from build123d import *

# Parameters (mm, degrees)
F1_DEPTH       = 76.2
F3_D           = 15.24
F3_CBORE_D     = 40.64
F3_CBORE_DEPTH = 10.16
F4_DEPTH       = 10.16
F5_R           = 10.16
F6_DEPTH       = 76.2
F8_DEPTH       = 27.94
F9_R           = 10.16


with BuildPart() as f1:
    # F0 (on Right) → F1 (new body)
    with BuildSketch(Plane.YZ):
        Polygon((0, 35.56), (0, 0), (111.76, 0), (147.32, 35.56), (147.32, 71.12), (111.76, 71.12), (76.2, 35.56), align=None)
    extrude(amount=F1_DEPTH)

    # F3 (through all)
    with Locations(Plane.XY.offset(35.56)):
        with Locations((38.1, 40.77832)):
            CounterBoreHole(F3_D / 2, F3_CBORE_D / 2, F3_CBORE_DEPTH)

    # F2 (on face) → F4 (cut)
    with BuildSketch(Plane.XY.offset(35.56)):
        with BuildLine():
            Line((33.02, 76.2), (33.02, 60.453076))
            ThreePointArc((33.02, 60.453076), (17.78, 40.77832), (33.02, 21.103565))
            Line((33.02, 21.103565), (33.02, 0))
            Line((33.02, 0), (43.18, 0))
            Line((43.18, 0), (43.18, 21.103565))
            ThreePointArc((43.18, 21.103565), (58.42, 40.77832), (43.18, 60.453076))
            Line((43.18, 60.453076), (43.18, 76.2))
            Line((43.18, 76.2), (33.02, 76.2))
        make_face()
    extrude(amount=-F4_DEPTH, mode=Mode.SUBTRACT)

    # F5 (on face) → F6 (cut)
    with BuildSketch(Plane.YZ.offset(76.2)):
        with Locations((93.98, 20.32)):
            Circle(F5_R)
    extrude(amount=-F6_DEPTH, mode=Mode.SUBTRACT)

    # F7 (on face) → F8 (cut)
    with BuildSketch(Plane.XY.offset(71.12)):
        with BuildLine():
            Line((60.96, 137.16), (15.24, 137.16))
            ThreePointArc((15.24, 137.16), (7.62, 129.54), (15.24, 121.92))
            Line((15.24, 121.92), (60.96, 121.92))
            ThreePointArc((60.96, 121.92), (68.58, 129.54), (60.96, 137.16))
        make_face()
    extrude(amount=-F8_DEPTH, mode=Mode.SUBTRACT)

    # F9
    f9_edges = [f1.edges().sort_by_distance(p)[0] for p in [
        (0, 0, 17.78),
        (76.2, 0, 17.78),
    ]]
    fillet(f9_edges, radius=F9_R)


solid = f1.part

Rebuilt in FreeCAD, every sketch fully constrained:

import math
import FreeCAD as App
import Part
import Sketcher

V = App.Vector
Q = App.Units.Quantity


def edges_at(feature, points):
    """Names of the edges that pass closest to the given points."""
    edges = feature.Shape.Edges
    near = lambda p: min(range(len(edges)), key=lambda i: edges[i].distToShape(Part.Vertex(*p))[0])
    return sorted({f"Edge{near(p) + 1}" for p in points})


def add_polygon(sketch, points):
    """Adds a closed chain of lines whose ends are joined by coincident constraints."""
    first, n = sketch.GeometryCount, len(points)
    for a, b in zip(points, points[1:] + points[:1]):
        sketch.addGeometry(Part.LineSegment(App.Vector(*a, 0), App.Vector(*b, 0)), False)
    for i in range(n):
        sketch.addConstraint(Sketcher.Constraint("Coincident", first + i, 2, first + (i + 1) % n, 1))

doc = App.newDocument("Part")
params = doc.addObject("Spreadsheet::Sheet", "Params")
for row, (alias, value) in enumerate([
    ("sketch1_width", "3 in"),
    ("sketch1_width2", "4.4 in"),
    ("pad1_length", "3 in"),
    ("sketch2_diameter", "0.6 in"),
    ("hole_diameter", "0.6 in"),
    ("hole_cbore_diameter", "1.6 in"),
    ("hole_cbore_depth", "0.4 in"),
    ("sketch3_radius", "0.8 in"),
    ("sketch3_width", "0.4 in"),
    ("pocket1_length", "0.4 in"),
    ("sketch4_diameter", "0.8 in"),
    ("pocket2_length", "3 in"),
    ("sketch5_radius", "0.3 in"),
    ("sketch5_width", "1.8 in"),
    ("pocket3_length", "1.1 in"),
    ("fillet_radius", "0.4 in"),
], start=1):
    params.set(f"A{row}", alias)
    params.set(f"B{row}", "=" + value)
    params.setAlias(f"B{row}", alias)

body = doc.addObject("PartDesign::Body", "Body")

# Sketch on YZ plane
sketch1 = doc.addObject("Sketcher::SketchObject", "Sketch")
body.addObject(sketch1)
sketch1.AttachmentSupport = (doc.YZ_Plane, [""])
sketch1.MapMode = "FlatFace"
add_polygon(sketch1, [(0, 36), (0, 0), (112, 0), (147, 36), (147, 71), (112, 71), (76, 36)])  # lines 0-6
sketch1.addConstraint([
    Sketcher.Constraint("Vertical", 0),
    Sketcher.Constraint("Horizontal", 1),
    Sketcher.Constraint("Vertical", 3),
    Sketcher.Constraint("Horizontal", 4),
    Sketcher.Constraint("Horizontal", 6),
    Sketcher.Constraint("Coincident", 0, 2, -1, 1),
    Sketcher.Constraint("Parallel", 2, 5),
    Sketcher.Constraint("Horizontal", 2, 2, 5, 2),
    Sketcher.Constraint("Vertical", 1, 2, 4, 2),
    Sketcher.Constraint("Equal", 4, 0),
    Sketcher.Constraint("Equal", 0, 3),
    Sketcher.Constraint("DistanceX", 6, 2, 6, 1, Q("3 in")),
    Sketcher.Constraint("DistanceX", 1, 1, 1, 2, Q("4.4 in")),
])
sketch1.setExpression("Constraints[18]", "Params.sketch1_width")
sketch1.setExpression("Constraints[19]", "Params.sketch1_width2")
pad1 = doc.addObject("PartDesign::Pad", "Pad")
body.addObject(pad1)
pad1.Profile = sketch1
pad1.setExpression("Length", "Params.pad1_length")

# Sketch on XY plane
sketch2 = doc.addObject("Sketcher::SketchObject", "Sketch001")
body.addObject(sketch2)
sketch2.AttachmentSupport = (doc.XY_Plane, [""])
sketch2.MapMode = "FlatFace"
sketch2.AttachmentOffset = App.Placement(V(0, 0, 1.4 * 25.4), App.Rotation())
sketch2.addGeometry(Part.Circle(V(38, 41, 0), V(0, 0, 1), 8), False)
sketch2.addConstraint([
    Sketcher.Constraint("Diameter", 0, Q("0.6 in")),
    Sketcher.Constraint("DistanceX", -1, 1, 0, 3, Q("1.5 in")),
    Sketcher.Constraint("DistanceY", -1, 1, 0, 3, Q("40.77832 mm")),
])
sketch2.setExpression("Constraints[0]", "Params.sketch2_diameter")
doc.recompute()
hole = doc.addObject("PartDesign::Hole", "Hole")
body.addObject(hole)
hole.Profile = sketch2
hole.ThreadType = "None"
hole.setExpression("Diameter", "Params.hole_diameter")
hole.DepthType = "ThroughAll"
hole.HoleCutType = "Counterbore"
hole.setExpression("HoleCutDiameter", "Params.hole_cbore_diameter")
hole.setExpression("HoleCutDepth", "Params.hole_cbore_depth")

# Sketch on XY plane
sketch3 = doc.addObject("Sketcher::SketchObject", "Sketch002")
body.addObject(sketch3)
sketch3.AttachmentSupport = (doc.XY_Plane, [""])
sketch3.MapMode = "FlatFace"
sketch3.AttachmentOffset = App.Placement(V(0, 0, 1.4 * 25.4), App.Rotation())
sketch3.addGeometry([
    Part.LineSegment(V(33, 76, 0), V(33, 60, 0)),  # 0
    Part.ArcOfCircle(Part.Circle(V(38, 41, 0), V(0, 0, 1), 20), math.radians(104), math.radians(256)),  # 1
    Part.LineSegment(V(33, 21, 0), V(33, 0, 0)),  # 2
    Part.LineSegment(V(33, 0, 0), V(43, 0, 0)),  # 3
    Part.LineSegment(V(43, 0, 0), V(43, 21, 0)),  # 4
    Part.ArcOfCircle(Part.Circle(V(38, 41, 0), V(0, 0, 1), 20), math.radians(-76), math.radians(76)),  # 5
    Part.LineSegment(V(43, 60, 0), V(43, 76, 0)),  # 6
    Part.LineSegment(V(43, 76, 0), V(33, 76, 0)),  # 7
], False)
sketch3.addConstraint([
    Sketcher.Constraint("Coincident", 0, 2, 1, 1),
    Sketcher.Constraint("Coincident", 1, 2, 2, 1),
    Sketcher.Constraint("Coincident", 2, 2, 3, 1),
    Sketcher.Constraint("Coincident", 3, 2, 4, 1),
    Sketcher.Constraint("Coincident", 4, 2, 5, 1),
    Sketcher.Constraint("Coincident", 5, 2, 6, 1),
    Sketcher.Constraint("Coincident", 6, 2, 7, 1),
    Sketcher.Constraint("Coincident", 7, 2, 0, 1),
    Sketcher.Constraint("Vertical", 0),
    Sketcher.Constraint("Vertical", 2),
    Sketcher.Constraint("Horizontal", 3),
    Sketcher.Constraint("Vertical", 4),
    Sketcher.Constraint("Vertical", 6),
    Sketcher.Constraint("Horizontal", 7),
    Sketcher.Constraint("Coincident", 5, 3, 1, 3),
    Sketcher.Constraint("Equal", 1, 5),
    Sketcher.Constraint("PointOnObject", 2, 2, -1),
    Sketcher.Constraint("Horizontal", 1, 2, 4, 2),
    Sketcher.Constraint("Horizontal", 0, 2, 5, 2),
    Sketcher.Constraint("Vertical", 0, 2, 1, 2),
    Sketcher.Constraint("Radius", 1, Q("0.8 in")),
    Sketcher.Constraint("DistanceX", 3, 1, 3, 2, Q("0.4 in")),
    Sketcher.Constraint("DistanceY", -1, 1, 6, 2, Q("3 in")),
    Sketcher.Constraint("DistanceX", -1, 1, 1, 3, Q("1.5 in")),
    Sketcher.Constraint("DistanceY", 0, 2, 0, 1, Q("15.746924 mm")),
])
sketch3.setExpression("Constraints[20]", "Params.sketch3_radius")
sketch3.setExpression("Constraints[21]", "Params.sketch3_width")
pocket1 = doc.addObject("PartDesign::Pocket", "Pocket")
body.addObject(pocket1)
pocket1.Profile = sketch3
pocket1.setExpression("Length", "Params.pocket1_length")

# Sketch on YZ plane
sketch4 = doc.addObject("Sketcher::SketchObject", "Sketch003")
body.addObject(sketch4)
sketch4.AttachmentSupport = (doc.YZ_Plane, [""])
sketch4.MapMode = "FlatFace"
sketch4.AttachmentOffset = App.Placement(V(0, 0, 3 * 25.4), App.Rotation())
sketch4.addGeometry(Part.Circle(V(94, 20, 0), V(0, 0, 1), 10), False)
sketch4.addConstraint([
    Sketcher.Constraint("Diameter", 0, Q("0.8 in")),
    Sketcher.Constraint("DistanceX", -1, 1, 0, 3, Q("3.7 in")),
    Sketcher.Constraint("DistanceY", -1, 1, 0, 3, Q("0.8 in")),
])
sketch4.setExpression("Constraints[0]", "Params.sketch4_diameter")
pocket2 = doc.addObject("PartDesign::Pocket", "Pocket001")
body.addObject(pocket2)
pocket2.Profile = sketch4
pocket2.setExpression("Length", "Params.pocket2_length")

# Sketch on XY plane
sketch5 = doc.addObject("Sketcher::SketchObject", "Sketch004")
body.addObject(sketch5)
sketch5.AttachmentSupport = (doc.XY_Plane, [""])
sketch5.MapMode = "FlatFace"
sketch5.AttachmentOffset = App.Placement(V(0, 0, 2.8 * 25.4), App.Rotation())
sketch5.addGeometry([
    Part.LineSegment(V(61, 137, 0), V(15, 137, 0)),
    Part.ArcOfCircle(Part.Circle(V(15, 130, 0), V(0, 0, 1), 8), math.radians(90), math.radians(270)),
    Part.LineSegment(V(15, 122, 0), V(61, 122, 0)),
    Part.ArcOfCircle(Part.Circle(V(61, 130, 0), V(0, 0, 1), 8), math.radians(-90), math.radians(90)),
], False)
sketch5.addConstraint([
    Sketcher.Constraint("Tangent", 0, 2, 1, 1),
    Sketcher.Constraint("Tangent", 1, 2, 2, 1),
    Sketcher.Constraint("Tangent", 2, 2, 3, 1),
    Sketcher.Constraint("Tangent", 3, 2, 0, 1),
    Sketcher.Constraint("Horizontal", 0),
    Sketcher.Constraint("Horizontal", 2),
    Sketcher.Constraint("Radius", 1, Q("0.3 in")),
    Sketcher.Constraint("DistanceX", 0, 2, 0, 1, Q("1.8 in")),
    Sketcher.Constraint("DistanceX", -1, 1, 1, 3, Q("0.6 in")),
    Sketcher.Constraint("DistanceY", -1, 1, 1, 3, Q("5.1 in")),
])
sketch5.setExpression("Constraints[6]", "Params.sketch5_radius")
sketch5.setExpression("Constraints[7]", "Params.sketch5_width")
pocket3 = doc.addObject("PartDesign::Pocket", "Pocket002")
body.addObject(pocket3)
pocket3.Profile = sketch5
pocket3.setExpression("Length", "Params.pocket3_length")
doc.recompute()

fillet = doc.addObject("PartDesign::Fillet", "Fillet")
body.addObject(fillet)
fillet.Base = (pocket3, edges_at(pocket3, [(0, 0, 17.78), (76.2, 0, 17.78)]))
fillet.setExpression("Radius", "Params.fillet_radius")

doc.recompute()
